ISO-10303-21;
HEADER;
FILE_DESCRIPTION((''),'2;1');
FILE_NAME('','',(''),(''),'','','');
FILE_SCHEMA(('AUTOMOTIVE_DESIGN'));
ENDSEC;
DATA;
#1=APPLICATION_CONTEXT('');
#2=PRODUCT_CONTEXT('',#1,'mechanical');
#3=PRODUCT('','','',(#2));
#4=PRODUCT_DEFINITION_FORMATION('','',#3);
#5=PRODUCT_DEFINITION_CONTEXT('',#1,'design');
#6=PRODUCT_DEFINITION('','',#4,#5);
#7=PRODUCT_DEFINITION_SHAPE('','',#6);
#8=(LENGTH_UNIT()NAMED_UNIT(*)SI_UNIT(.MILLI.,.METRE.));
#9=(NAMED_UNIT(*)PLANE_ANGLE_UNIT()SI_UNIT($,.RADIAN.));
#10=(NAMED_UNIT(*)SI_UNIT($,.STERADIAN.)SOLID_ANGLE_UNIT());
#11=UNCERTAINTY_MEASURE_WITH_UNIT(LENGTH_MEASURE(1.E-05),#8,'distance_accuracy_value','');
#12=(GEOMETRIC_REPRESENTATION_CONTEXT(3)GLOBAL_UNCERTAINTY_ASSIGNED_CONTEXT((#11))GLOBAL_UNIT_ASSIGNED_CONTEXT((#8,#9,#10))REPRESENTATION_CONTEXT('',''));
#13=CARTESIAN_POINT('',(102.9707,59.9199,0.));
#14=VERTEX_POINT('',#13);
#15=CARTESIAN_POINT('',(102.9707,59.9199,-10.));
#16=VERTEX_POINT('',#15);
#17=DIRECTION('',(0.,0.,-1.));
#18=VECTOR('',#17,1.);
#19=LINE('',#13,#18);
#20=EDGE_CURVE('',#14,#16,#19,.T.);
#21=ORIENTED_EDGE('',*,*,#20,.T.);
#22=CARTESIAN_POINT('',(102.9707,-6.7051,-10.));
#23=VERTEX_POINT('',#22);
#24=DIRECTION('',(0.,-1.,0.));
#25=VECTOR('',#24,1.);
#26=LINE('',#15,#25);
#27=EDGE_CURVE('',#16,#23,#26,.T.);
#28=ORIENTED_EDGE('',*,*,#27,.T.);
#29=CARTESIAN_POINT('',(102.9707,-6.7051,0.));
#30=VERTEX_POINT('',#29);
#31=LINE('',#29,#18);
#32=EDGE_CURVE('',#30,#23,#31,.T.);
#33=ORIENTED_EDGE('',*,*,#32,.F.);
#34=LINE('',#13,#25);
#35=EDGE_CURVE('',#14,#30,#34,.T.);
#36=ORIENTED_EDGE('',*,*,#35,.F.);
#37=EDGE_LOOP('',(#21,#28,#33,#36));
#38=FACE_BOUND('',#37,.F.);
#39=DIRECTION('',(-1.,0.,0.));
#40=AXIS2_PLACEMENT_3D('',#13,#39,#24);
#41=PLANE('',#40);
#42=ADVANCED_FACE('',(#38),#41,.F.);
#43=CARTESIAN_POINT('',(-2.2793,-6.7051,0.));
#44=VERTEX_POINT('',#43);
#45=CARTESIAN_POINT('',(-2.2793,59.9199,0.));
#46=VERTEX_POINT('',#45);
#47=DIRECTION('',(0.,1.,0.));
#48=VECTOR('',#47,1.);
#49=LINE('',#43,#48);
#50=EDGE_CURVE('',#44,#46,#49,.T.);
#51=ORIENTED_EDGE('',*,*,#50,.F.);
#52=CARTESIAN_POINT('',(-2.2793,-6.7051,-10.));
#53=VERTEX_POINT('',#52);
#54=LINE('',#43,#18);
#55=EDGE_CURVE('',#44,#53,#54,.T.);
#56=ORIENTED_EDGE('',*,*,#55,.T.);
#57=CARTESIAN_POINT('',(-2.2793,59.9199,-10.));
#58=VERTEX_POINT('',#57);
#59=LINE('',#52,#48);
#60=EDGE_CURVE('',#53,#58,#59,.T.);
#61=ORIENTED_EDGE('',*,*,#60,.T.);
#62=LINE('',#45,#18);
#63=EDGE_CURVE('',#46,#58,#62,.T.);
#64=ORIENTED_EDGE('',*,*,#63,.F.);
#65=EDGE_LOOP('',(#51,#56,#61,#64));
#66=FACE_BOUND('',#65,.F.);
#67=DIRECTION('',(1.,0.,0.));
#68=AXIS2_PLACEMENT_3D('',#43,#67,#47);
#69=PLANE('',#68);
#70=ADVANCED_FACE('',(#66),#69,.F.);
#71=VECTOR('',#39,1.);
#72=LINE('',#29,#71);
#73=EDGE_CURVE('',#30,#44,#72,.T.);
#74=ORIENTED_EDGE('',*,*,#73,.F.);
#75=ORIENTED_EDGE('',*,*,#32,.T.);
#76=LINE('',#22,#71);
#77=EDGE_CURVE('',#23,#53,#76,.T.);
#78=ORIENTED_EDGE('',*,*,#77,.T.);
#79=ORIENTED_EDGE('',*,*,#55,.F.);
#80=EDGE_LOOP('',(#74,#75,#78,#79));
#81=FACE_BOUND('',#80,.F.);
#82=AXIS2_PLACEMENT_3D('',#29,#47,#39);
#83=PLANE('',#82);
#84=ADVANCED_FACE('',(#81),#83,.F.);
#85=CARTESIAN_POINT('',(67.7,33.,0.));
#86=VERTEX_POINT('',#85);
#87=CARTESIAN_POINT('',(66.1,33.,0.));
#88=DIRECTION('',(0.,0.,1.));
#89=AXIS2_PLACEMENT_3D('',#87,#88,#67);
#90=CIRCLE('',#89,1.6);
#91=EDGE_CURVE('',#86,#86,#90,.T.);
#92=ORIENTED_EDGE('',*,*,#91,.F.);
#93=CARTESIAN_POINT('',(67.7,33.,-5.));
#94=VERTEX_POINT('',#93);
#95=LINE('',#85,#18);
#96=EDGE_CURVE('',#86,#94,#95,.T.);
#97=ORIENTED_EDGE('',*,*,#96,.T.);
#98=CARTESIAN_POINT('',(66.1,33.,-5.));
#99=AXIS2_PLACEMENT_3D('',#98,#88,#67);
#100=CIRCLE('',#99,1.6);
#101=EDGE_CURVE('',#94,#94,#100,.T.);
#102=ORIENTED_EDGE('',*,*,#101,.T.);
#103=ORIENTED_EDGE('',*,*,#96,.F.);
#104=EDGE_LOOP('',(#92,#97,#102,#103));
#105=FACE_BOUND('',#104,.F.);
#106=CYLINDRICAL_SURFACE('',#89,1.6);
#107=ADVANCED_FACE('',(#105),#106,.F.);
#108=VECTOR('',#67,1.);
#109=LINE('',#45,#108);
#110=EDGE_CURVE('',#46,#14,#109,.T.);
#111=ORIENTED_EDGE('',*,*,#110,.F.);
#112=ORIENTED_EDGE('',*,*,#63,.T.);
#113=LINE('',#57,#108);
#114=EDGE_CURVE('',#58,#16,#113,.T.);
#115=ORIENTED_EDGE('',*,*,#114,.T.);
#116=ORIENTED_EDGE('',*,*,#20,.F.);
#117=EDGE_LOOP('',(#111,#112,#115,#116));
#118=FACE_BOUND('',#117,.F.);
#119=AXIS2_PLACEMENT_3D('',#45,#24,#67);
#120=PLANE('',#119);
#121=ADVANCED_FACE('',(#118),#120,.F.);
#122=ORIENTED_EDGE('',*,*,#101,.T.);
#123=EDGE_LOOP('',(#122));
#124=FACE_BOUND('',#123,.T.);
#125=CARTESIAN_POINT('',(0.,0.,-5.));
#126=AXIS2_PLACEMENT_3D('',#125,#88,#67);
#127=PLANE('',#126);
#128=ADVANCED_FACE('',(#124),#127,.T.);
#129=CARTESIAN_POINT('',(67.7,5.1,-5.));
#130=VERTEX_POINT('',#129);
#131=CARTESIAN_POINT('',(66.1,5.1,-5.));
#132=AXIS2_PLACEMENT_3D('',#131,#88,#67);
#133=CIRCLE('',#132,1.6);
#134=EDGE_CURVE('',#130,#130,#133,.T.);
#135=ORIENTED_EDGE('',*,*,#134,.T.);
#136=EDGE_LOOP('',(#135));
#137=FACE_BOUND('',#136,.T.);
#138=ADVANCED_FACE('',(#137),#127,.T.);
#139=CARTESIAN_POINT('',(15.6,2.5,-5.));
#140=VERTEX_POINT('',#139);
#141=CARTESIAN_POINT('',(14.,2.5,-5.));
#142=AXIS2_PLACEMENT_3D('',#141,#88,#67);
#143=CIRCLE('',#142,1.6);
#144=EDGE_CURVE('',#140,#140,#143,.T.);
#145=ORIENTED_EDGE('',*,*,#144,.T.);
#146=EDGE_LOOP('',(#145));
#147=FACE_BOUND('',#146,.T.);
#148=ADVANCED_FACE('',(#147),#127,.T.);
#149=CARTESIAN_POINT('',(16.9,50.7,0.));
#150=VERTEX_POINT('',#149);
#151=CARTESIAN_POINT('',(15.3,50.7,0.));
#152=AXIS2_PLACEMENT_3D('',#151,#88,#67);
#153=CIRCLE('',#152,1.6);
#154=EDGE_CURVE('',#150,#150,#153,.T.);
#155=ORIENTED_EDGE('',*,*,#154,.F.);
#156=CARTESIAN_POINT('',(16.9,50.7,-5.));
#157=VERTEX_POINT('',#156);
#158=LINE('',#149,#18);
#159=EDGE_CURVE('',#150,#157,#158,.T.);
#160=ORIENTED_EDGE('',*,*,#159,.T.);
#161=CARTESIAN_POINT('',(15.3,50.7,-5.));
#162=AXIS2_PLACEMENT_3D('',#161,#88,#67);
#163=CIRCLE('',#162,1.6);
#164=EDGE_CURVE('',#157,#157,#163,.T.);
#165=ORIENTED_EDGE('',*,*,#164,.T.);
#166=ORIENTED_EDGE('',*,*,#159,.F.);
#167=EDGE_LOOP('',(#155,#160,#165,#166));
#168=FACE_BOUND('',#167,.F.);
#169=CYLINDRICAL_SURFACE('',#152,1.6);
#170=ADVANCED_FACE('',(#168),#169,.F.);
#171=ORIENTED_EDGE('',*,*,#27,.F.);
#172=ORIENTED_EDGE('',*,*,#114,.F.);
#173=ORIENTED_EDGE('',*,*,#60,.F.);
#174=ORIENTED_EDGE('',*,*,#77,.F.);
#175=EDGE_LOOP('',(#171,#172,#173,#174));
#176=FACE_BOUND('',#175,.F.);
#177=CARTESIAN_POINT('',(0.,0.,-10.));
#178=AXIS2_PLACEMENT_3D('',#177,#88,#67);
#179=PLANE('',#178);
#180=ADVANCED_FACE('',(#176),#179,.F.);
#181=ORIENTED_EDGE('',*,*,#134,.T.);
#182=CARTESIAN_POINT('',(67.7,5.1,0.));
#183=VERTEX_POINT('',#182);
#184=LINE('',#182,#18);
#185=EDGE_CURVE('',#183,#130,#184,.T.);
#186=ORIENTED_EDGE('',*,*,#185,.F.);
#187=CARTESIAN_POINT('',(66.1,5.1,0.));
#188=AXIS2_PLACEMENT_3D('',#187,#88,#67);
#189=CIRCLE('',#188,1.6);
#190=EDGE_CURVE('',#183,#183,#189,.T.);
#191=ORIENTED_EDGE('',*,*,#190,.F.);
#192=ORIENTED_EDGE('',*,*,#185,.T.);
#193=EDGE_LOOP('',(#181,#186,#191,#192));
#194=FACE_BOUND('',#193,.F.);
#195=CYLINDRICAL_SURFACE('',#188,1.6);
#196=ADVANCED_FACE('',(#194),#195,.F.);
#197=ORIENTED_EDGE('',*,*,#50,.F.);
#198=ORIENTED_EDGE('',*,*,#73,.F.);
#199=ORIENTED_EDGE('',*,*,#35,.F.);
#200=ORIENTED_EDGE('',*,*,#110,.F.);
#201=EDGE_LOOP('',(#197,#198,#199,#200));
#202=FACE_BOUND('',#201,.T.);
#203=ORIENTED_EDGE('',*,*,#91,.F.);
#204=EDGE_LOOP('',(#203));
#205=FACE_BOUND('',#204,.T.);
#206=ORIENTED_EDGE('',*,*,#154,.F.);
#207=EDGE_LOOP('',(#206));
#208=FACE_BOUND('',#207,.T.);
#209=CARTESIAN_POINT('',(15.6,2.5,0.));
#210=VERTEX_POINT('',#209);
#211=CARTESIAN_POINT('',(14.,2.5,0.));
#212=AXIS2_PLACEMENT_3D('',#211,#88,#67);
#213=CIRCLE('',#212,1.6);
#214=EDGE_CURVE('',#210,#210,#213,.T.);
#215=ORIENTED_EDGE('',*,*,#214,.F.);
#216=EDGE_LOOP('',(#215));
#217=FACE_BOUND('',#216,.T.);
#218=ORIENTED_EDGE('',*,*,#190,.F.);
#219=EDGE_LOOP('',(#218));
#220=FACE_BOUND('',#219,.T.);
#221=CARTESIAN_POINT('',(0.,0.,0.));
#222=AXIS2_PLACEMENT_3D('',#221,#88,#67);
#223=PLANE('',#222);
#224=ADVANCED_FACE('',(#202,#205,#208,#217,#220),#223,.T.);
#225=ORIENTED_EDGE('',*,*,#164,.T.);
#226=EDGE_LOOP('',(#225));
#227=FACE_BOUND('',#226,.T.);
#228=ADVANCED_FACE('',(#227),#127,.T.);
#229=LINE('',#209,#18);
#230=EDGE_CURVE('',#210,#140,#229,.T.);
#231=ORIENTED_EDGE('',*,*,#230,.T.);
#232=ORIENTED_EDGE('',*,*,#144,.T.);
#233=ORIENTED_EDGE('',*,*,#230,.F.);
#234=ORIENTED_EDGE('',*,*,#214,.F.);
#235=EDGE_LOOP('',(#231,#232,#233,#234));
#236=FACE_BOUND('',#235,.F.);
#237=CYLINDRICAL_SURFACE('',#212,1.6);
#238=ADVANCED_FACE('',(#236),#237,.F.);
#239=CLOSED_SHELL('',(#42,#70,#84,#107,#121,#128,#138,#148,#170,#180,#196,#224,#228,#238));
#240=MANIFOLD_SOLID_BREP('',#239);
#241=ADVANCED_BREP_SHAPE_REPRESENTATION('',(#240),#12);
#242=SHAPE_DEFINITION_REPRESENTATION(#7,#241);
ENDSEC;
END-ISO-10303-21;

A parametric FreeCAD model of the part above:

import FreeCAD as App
import Part
import Sketcher

V = App.Vector
Q = App.Units.Quantity

doc = App.newDocument("Part")
body = doc.addObject("PartDesign::Body", "Body")

# Sketch on XY plane
sketch1 = body.newObject("Sketcher::SketchObject", "Sketch")
sketch1.AttachmentSupport = (doc.getObject("XY_Plane"), [""])
sketch1.MapMode = "FlatFace"
sketch1.addGeometry([
    Part.LineSegment(V(-2, 60, 0), V(-2, -7, 0)),
    Part.LineSegment(V(-2, -7, 0), V(103, -7, 0)),
    Part.LineSegment(V(103, -7, 0), V(103, 60, 0)),
    Part.LineSegment(V(103, 60, 0), V(-2, 60, 0)),
], False)
sketch1.addConstraint([
    Sketcher.Constraint("Coincident", 0, 2, 1, 1),
    Sketcher.Constraint("Coincident", 1, 2, 2, 1),
    Sketcher.Constraint("Coincident", 2, 2, 3, 1),
    Sketcher.Constraint("Coincident", 3, 2, 0, 1),
    Sketcher.Constraint("Vertical", 0),
    Sketcher.Constraint("Horizontal", 1),
    Sketcher.Constraint("Vertical", 2),
    Sketcher.Constraint("Horizontal", 3),
    Sketcher.Constraint("DistanceX", 1, 1, 1, 2, Q("105.25 mm")),
    Sketcher.Constraint("DistanceY", 0, 2, 0, 1, Q("66.625 mm")),
    Sketcher.Constraint("DistanceY", -1, 1, 2, 2, Q("59.92 mm")),
    Sketcher.Constraint("DistanceX", 0, 2, -1, 1, Q("2.2793 mm")),
])
pad1 = body.newObject("PartDesign::Pad", "Pad")
pad1.Profile = sketch1
pad1.Length = 10
pad1.Reversed = True

# Sketch on XY plane
sketch2 = body.newObject("Sketcher::SketchObject", "Sketch001")
sketch2.AttachmentSupport = (doc.getObject("XY_Plane"), [""])
sketch2.MapMode = "FlatFace"
sketch2.addGeometry([
    Part.Circle(V(14, 2.5, 0), V(0, 0, 1), 1.6),
    Part.Circle(V(15.3, 50.7, 0), V(0, 0, 1), 1.6),
    Part.Circle(V(66.1, 5.1, 0), V(0, 0, 1), 1.6),
    Part.Circle(V(66.1, 33, 0), V(0, 0, 1), 1.6),
], False)
sketch2.addConstraint([
    Sketcher.Constraint("Equal", 0, 1),
    Sketcher.Constraint("Equal", 1, 2),
    Sketcher.Constraint("Equal", 2, 3),
    Sketcher.Constraint("Vertical", 2, 3, 3, 3),
    Sketcher.Constraint("Diameter", 0, Q("3.2 mm")),
    Sketcher.Constraint("DistanceX", -1, 1, 0, 3, Q("14 mm")),
    Sketcher.Constraint("DistanceY", -1, 1, 0, 3, Q("2.5 mm")),
    Sketcher.Constraint("DistanceY", -1, 1, 2, 3, Q("5.1 mm")),
    Sketcher.Constraint("DistanceX", 0, 3, 1, 3, Q("1.3 mm")),
    Sketcher.Constraint("DistanceY", 2, 3, 3, 3, Q("27.9 mm")),
    Sketcher.Constraint("DistanceY", -1, 1, 1, 3, Q("50.7 mm")),
    Sketcher.Constraint("DistanceX", -1, 1, 2, 3, Q("66.1 mm")),
])
pocket1 = body.newObject("PartDesign::Pocket", "Pocket")
pocket1.Profile = sketch2
pocket1.Length = 5

doc.recompute()
